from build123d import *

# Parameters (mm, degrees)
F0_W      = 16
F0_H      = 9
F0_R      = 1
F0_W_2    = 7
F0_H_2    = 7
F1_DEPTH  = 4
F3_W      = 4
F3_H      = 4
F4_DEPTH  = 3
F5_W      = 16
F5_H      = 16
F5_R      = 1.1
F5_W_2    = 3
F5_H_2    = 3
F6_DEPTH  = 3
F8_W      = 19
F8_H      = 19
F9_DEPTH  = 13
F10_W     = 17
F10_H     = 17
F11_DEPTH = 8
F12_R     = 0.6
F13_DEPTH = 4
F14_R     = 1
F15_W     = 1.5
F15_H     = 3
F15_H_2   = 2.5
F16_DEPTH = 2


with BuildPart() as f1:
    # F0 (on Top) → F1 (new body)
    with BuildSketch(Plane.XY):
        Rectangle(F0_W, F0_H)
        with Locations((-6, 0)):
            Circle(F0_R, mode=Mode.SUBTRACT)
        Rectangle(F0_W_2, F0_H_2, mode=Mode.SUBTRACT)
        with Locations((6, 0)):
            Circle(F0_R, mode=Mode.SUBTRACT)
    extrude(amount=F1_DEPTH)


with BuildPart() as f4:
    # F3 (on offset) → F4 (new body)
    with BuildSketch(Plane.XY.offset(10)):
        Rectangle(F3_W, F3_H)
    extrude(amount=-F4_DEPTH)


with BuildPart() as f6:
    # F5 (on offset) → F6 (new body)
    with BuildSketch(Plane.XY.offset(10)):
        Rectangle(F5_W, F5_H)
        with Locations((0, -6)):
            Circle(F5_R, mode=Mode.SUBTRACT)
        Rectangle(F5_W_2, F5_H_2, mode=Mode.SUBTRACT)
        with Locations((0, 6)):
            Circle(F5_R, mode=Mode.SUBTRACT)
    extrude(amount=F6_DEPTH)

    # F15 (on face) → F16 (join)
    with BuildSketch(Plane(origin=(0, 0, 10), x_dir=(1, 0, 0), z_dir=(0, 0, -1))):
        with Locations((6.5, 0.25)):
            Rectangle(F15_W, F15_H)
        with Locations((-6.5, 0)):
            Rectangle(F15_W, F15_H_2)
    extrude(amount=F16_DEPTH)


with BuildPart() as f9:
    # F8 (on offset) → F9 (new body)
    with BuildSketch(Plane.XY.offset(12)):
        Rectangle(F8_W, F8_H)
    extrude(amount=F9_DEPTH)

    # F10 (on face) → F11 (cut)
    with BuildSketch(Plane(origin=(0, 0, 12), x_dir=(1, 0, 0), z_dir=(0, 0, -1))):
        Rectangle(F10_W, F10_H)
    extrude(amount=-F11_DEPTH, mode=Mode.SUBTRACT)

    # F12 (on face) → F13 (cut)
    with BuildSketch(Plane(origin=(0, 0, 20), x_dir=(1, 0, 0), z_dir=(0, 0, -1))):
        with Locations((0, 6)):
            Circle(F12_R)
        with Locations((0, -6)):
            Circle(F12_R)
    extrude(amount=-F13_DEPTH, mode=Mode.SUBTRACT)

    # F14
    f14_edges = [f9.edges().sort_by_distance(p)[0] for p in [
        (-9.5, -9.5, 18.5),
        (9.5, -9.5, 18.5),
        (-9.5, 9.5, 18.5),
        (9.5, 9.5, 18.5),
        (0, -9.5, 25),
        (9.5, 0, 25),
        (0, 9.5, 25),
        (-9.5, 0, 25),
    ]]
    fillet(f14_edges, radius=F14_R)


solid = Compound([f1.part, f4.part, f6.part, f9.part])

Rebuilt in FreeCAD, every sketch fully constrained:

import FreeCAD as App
import Part
import Sketcher
from FreeCAD import Vector
Q = App.Units.Quantity


def edges_at(feature, points):
    """Names of the edges that pass closest to the given points."""
    edges = feature.Shape.Edges
    near = lambda p: min(range(len(edges)), key=lambda i: edges[i].distToShape(Part.Vertex(*p))[0])
    return sorted({f"Edge{near(p) + 1}" for p in points})


def add_polygon(sketch, points):
    """Adds a closed chain of lines whose ends are joined by coincident constraints."""
    first, n = sketch.GeometryCount, len(points)
    for a, b in zip(points, points[1:] + points[:1]):
        sketch.addGeometry(Part.LineSegment(App.Vector(*a, 0), App.Vector(*b, 0)), False)
    for i in range(n):
        sketch.addConstraint(Sketcher.Constraint("Coincident", first + i, 2, first + (i + 1) % n, 1))

doc = App.newDocument("Part")
body = doc.addObject("PartDesign::Body", "Body")

sketch1 = doc.addObject("Sketcher::SketchObject", "Sketch")
body.addObject(sketch1)
sketch1.AttachmentSupport = (doc.XY_Plane, [""])
sketch1.MapMode = "FlatFace"
add_polygon(sketch1, [(-8, 4.5), (-8, -4.5), (8, -4.5), (8, 4.5)])
sketch1.addGeometry(Part.Circle(Vector(-6, 0, 0), Vector(0, 0, 1), 1), False)
add_polygon(sketch1, [(3.5, -3.5), (-3.5, -3.5), (-3.5, 3.5), (3.5, 3.5)])
sketch1.addGeometry(Part.Circle(Vector(6, 0, 0), Vector(0, 0, 1), 1), False)
sketch1.addConstraint([
    Sketcher.Constraint("Vertical", 0),
    Sketcher.Constraint("Horizontal", 1),
    Sketcher.Constraint("Vertical", 2),
    Sketcher.Constraint("Horizontal", 3),
    Sketcher.Constraint("Horizontal", 5),
    Sketcher.Constraint("Vertical", 6),
    Sketcher.Constraint("Horizontal", 7),
    Sketcher.Constraint("Vertical", 8),
    Sketcher.Constraint("Equal", 4, 9),
    Sketcher.Constraint("Symmetric", 4, 3, 9, 3, -1, 1),
    Sketcher.Constraint("Symmetric", 0, 2, 2, 2, -1, 1),
    Sketcher.Constraint("Symmetric", 5, 2, 7, 2, -1, 1),
    Sketcher.Constraint("PointOnObject", 4, 3, -1),
    Sketcher.Constraint("Equal", 7, 6),
    Sketcher.Constraint("Diameter", 4, Q("2 mm")),
    Sketcher.Constraint("DistanceX", 1, 1, 1, 2, Q("16 mm")),
    Sketcher.Constraint("DistanceX", 5, 2, 5, 1, Q("7 mm")),
    Sketcher.Constraint("DistanceY", 0, 2, 0, 1, Q("9 mm")),
    Sketcher.Constraint("DistanceX", 4, 3, -1, 1, Q("6 mm")),
])
pad1 = doc.addObject("PartDesign::Pad", "Pad")
body.addObject(pad1)
pad1.Profile = sketch1
pad1.Length = 4
body2 = doc.addObject("PartDesign::Body", "Body001")

sketch2 = doc.addObject("Sketcher::SketchObject", "Sketch001")
body2.addObject(sketch2)
sketch2.AttachmentSupport = (doc.getObject("XY_Plane001"), [""])
sketch2.MapMode = "FlatFace"
sketch2.AttachmentOffset = App.Placement(Vector(0, 0, 10), App.Rotation())
add_polygon(sketch2, [(-2, 2), (-2, -2), (2, -2), (2, 2)])
sketch2.addConstraint([
    Sketcher.Constraint("Vertical", 0),
    Sketcher.Constraint("Horizontal", 1),
    Sketcher.Constraint("Vertical", 2),
    Sketcher.Constraint("Horizontal", 3),
    Sketcher.Constraint("Symmetric", 0, 2, 2, 2, -1, 1),
    Sketcher.Constraint("Equal", 3, 0),
    Sketcher.Constraint("DistanceX", 1, 1, 1, 2, Q("4 mm")),
])
pad2 = doc.addObject("PartDesign::Pad", "Pad001")
body2.addObject(pad2)
pad2.Profile = sketch2
pad2.Length = 3
pad2.Reversed = True
body3 = doc.addObject("PartDesign::Body", "Body002")

sketch3 = doc.addObject("Sketcher::SketchObject", "Sketch002")
body3.addObject(sketch3)
sketch3.AttachmentSupport = (doc.getObject("XY_Plane002"), [""])
sketch3.MapMode = "FlatFace"
sketch3.AttachmentOffset = App.Placement(Vector(0, 0, 10), App.Rotation())
add_polygon(sketch3, [(-8, 8), (-8, -8), (8, -8), (8, 8)])
sketch3.addGeometry(Part.Circle(Vector(0, -6, 0), Vector(0, 0, 1), 1.1), False)
add_polygon(sketch3, [(1.5, -1.5), (-1.5, -1.5), (-1.5, 1.5), (1.5, 1.5)])
sketch3.addGeometry(Part.Circle(Vector(0, 6, 0), Vector(0, 0, 1), 1.1), False)
sketch3.addConstraint([
    Sketcher.Constraint("Vertical", 0),
    Sketcher.Constraint("Horizontal", 1),
    Sketcher.Constraint("Vertical", 2),
    Sketcher.Constraint("Horizontal", 3),
    Sketcher.Constraint("Horizontal", 5),
    Sketcher.Constraint("Vertical", 6),
    Sketcher.Constraint("Horizontal", 7),
    Sketcher.Constraint("Vertical", 8),
    Sketcher.Constraint("Equal", 4, 9),
    Sketcher.Constraint("Symmetric", 4, 3, 9, 3, -1, 1),
    Sketcher.Constraint("Symmetric", 0, 2, 2, 2, -1, 1),
    Sketcher.Constraint("Symmetric", 5, 2, 7, 2, -1, 1),
    Sketcher.Constraint("PointOnObject", 4, 3, -2),
    Sketcher.Constraint("Equal", 3, 0),
    Sketcher.Constraint("Equal", 7, 6),
    Sketcher.Constraint("Diameter", 4, Q("2.2 mm")),
    Sketcher.Constraint("DistanceX", 1, 1, 1, 2, Q("16 mm")),
    Sketcher.Constraint("DistanceX", 5, 2, 5, 1, Q("3 mm")),
    Sketcher.Constraint("DistanceY", 4, 3, -1, 1, Q("6 mm")),
])
pad3 = doc.addObject("PartDesign::Pad", "Pad002")
body3.addObject(pad3)
pad3.Profile = sketch3
pad3.Length = 3

sketch4 = doc.addObject("Sketcher::SketchObject", "Sketch003")
body3.addObject(sketch4)
sketch4.AttachmentSupport = (doc.getObject("XY_Plane002"), [""])
sketch4.MapMode = "FlatFace"
sketch4.AttachmentOffset = App.Placement(Vector(0, 0, 10), App.Rotation())
add_polygon(sketch4, [(5.8, -1.8), (5.8, 1.2), (7.2, 1.2), (7.2, -1.8)])
add_polygon(sketch4, [(-7.2, -1.2), (-7.2, 1.2), (-5.8, 1.2), (-5.8, -1.2)])
sketch4.addConstraint([
    Sketcher.Constraint("Vertical", 0),
    Sketcher.Constraint("Horizontal", 1),
    Sketcher.Constraint("Vertical", 2),
    Sketcher.Constraint("Horizontal", 3),
    Sketcher.Constraint("Vertical", 4),
    Sketcher.Constraint("Horizontal", 5),
    Sketcher.Constraint("Vertical", 6),
    Sketcher.Constraint("Horizontal", 7),
    Sketcher.Constraint("Symmetric", 0, 2, 6, 2, -1, 1),
    Sketcher.Constraint("Symmetric", 1, 2, 4, 2, -2),
    Sketcher.Constraint("DistanceY", 0, 1, 0, 2, Q("3 mm")),
    Sketcher.Constraint("DistanceX", 1, 1, 1, 2, Q("1.5 mm")),
    Sketcher.Constraint("DistanceY", 4, 1, 4, 2, Q("2.5 mm")),
    Sketcher.Constraint("DistanceX", 4, 2, 0, 2, Q("13 mm")),
])
pad4 = doc.addObject("PartDesign::Pad", "Pad003")
body3.addObject(pad4)
pad4.Profile = sketch4
pad4.Length = 2
pad4.Reversed = True
body4 = doc.addObject("PartDesign::Body", "Body003")

sketch5 = doc.addObject("Sketcher::SketchObject", "Sketch004")
body4.addObject(sketch5)
sketch5.AttachmentSupport = (doc.getObject("XY_Plane003"), [""])
sketch5.MapMode = "FlatFace"
sketch5.AttachmentOffset = App.Placement(Vector(0, 0, 12), App.Rotation())
add_polygon(sketch5, [(-10, 10), (-10, -10), (10, -10), (10, 10)])
sketch5.addConstraint([
    Sketcher.Constraint("Vertical", 0),
    Sketcher.Constraint("Horizontal", 1),
    Sketcher.Constraint("Vertical", 2),
    Sketcher.Constraint("Horizontal", 3),
    Sketcher.Constraint("Symmetric", 0, 2, 2, 2, -1, 1),
    Sketcher.Constraint("Equal", 3, 0),
    Sketcher.Constraint("DistanceX", 1, 1, 1, 2, Q("19 mm")),
])
pad5 = doc.addObject("PartDesign::Pad", "Pad004")
body4.addObject(pad5)
pad5.Profile = sketch5
pad5.Length = 13

sketch6 = doc.addObject("Sketcher::SketchObject", "Sketch005")
body4.addObject(sketch6)
sketch6.AttachmentSupport = (doc.getObject("XY_Plane003"), [""])
sketch6.MapMode = "FlatFace"
sketch6.AttachmentOffset = App.Placement(Vector(0, 0, 12), App.Rotation())
add_polygon(sketch6, [(-8, -8), (-8, 8), (8, 8), (8, -8)])
sketch6.addConstraint([
    Sketcher.Constraint("Vertical", 0),
    Sketcher.Constraint("Horizontal", 1),
    Sketcher.Constraint("Vertical", 2),
    Sketcher.Constraint("Horizontal", 3),
    Sketcher.Constraint("Symmetric", 0, 2, 2, 2, -1, 1),
    Sketcher.Constraint("Equal", 3, 0),
    Sketcher.Constraint("DistanceX", 1, 1, 1, 2, Q("17 mm")),
])
pocket1 = doc.addObject("PartDesign::Pocket", "Pocket")
body4.addObject(pocket1)
pocket1.Profile = sketch6
pocket1.Length = 8
pocket1.Reversed = True

sketch7 = doc.addObject("Sketcher::SketchObject", "Sketch006")
body4.addObject(sketch7)
sketch7.AttachmentSupport = (doc.getObject("XY_Plane003"), [""])
sketch7.MapMode = "FlatFace"
sketch7.AttachmentOffset = App.Placement(Vector(0, 0, 20), App.Rotation())
sketch7.addGeometry([
    Part.Circle(Vector(0, -6, 0), Vector(0, 0, 1), 0.6),
    Part.Circle(Vector(0, 6, 0), Vector(0, 0, 1), 0.6),
], False)
sketch7.addConstraint([
    Sketcher.Constraint("Equal", 0, 1),
    Sketcher.Constraint("Symmetric", 0, 3, 1, 3, -1, 1),
    Sketcher.Constraint("PointOnObject", 0, 3, -2),
    Sketcher.Constraint("Diameter", 0, Q("1.2 mm")),
    Sketcher.Constraint("DistanceY", 0, 3, -1, 1, Q("6 mm")),
])
pocket2 = doc.addObject("PartDesign::Pocket", "Pocket001")
body4.addObject(pocket2)
pocket2.Profile = sketch7
pocket2.Length = 4
pocket2.Reversed = True
doc.recompute()

fillet = doc.addObject("PartDesign::Fillet", "Fillet")
body4.addObject(fillet)
fillet.Base = (pocket2, edges_at(pocket2, [
    (-9.5, -9.5, 18.5),
    (9.5, -9.5, 18.5),
    (-9.5, 9.5, 18.5),
    (9.5, 9.5, 18.5),
    (0, -9.5, 25),
    (9.5, 0, 25),
    (0, 9.5, 25),
    (-9.5, 0, 25),
]))
fillet.Radius = 1

doc.recompute()
